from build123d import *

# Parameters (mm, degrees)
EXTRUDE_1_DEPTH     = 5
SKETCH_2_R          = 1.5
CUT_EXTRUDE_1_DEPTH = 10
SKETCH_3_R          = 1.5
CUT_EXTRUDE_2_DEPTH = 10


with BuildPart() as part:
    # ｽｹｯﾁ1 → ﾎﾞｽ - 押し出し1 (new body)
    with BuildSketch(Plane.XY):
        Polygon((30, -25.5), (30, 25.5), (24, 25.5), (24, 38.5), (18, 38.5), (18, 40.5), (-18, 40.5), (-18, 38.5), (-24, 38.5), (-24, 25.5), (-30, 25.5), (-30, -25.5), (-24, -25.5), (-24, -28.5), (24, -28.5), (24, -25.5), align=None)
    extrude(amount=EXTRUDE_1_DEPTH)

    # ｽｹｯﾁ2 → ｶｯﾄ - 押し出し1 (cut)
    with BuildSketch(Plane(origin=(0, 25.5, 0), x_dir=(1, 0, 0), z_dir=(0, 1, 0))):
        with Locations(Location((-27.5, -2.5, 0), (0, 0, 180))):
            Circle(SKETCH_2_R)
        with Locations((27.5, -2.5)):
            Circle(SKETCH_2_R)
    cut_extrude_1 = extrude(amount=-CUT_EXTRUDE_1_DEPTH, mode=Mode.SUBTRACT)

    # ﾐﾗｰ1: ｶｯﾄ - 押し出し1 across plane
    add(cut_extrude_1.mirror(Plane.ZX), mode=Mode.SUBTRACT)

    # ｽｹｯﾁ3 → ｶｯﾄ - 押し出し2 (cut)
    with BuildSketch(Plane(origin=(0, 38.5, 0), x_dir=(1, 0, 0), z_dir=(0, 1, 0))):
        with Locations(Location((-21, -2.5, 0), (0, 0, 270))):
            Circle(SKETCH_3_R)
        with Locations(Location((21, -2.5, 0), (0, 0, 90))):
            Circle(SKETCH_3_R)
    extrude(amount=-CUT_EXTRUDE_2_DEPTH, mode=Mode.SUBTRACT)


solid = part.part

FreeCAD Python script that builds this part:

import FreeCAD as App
import Part
import Sketcher

V = App.Vector
Q = App.Units.Quantity


def add_polygon(sketch, points):
    """Adds a closed chain of lines whose ends are joined by coincident constraints."""
    first, n = sketch.GeometryCount, len(points)
    for a, b in zip(points, points[1:] + points[:1]):
        sketch.addGeometry(Part.LineSegment(App.Vector(*a, 0), App.Vector(*b, 0)), False)
    for i in range(n):
        sketch.addConstraint(Sketcher.Constraint("Coincident", first + i, 2, first + (i + 1) % n, 1))

doc = App.newDocument("Part")
body = doc.addObject("PartDesign::Body", "Body")

# Sketch on XY plane
sketch1 = doc.addObject("Sketcher::SketchObject", "Sketch")
body.addObject(sketch1)
sketch1.AttachmentSupport = (doc.XY_Plane, [""])
sketch1.MapMode = "FlatFace"
add_polygon(sketch1, [(30, -25.5), (30, 25.5), (24, 25.5), (24, 38.5), (18, 38.5), (18, 40.5), (-18, 40.5), (-18, 38.5), (-24, 38.5), (-24, 25.5), (-30, 25.5), (-30, -25.5), (-24, -25.5), (-24, -28.5), (24, -28.5), (24, -25.5)])  # lines 0-15
sketch1.addConstraint([
    Sketcher.Constraint("Vertical", 0),
    Sketcher.Constraint("Horizontal", 1),
    Sketcher.Constraint("Vertical", 2),
    Sketcher.Constraint("Horizontal", 3),
    Sketcher.Constraint("Vertical", 4),
    Sketcher.Constraint("Horizontal", 5),
    Sketcher.Constraint("Vertical", 6),
    Sketcher.Constraint("Horizontal", 7),
    Sketcher.Constraint("Vertical", 8),
    Sketcher.Constraint("Horizontal", 9),
    Sketcher.Constraint("Vertical", 10),
    Sketcher.Constraint("Horizontal", 11),
    Sketcher.Constraint("Vertical", 12),
    Sketcher.Constraint("Horizontal", 13),
    Sketcher.Constraint("Vertical", 14),
    Sketcher.Constraint("Horizontal", 15),
    Sketcher.Constraint("Symmetric", 0, 2, 10, 2, -1, 1),
    Sketcher.Constraint("Symmetric", 8, 2, 14, 2, -1, 1),
    Sketcher.Constraint("Symmetric", 3, 2, 6, 2, -2),
    Sketcher.Constraint("Symmetric", 1, 2, 8, 2, -2),
    Sketcher.Constraint("Vertical", 8, 2, 11, 2),
    Sketcher.Constraint("Equal", 1, 3),
    Sketcher.Constraint("DistanceX", 1, 2, 1, 1, Q("6 mm")),
    Sketcher.Constraint("DistanceX", 5, 2, 5, 1, Q("36 mm")),
    Sketcher.Constraint("DistanceY", 0, 1, 0, 2, Q("51 mm")),
    Sketcher.Constraint("DistanceY", 2, 1, 2, 2, Q("13 mm")),
    Sketcher.Constraint("DistanceY", 4, 1, 4, 2, Q("2 mm")),
    Sketcher.Constraint("DistanceY", 12, 2, 12, 1, Q("3 mm")),
])
pad1 = doc.addObject("PartDesign::Pad", "Pad")
body.addObject(pad1)
pad1.Profile = sketch1
pad1.Length = 5

# Sketch on XZ plane
sketch2 = doc.addObject("Sketcher::SketchObject", "Sketch001")
body.addObject(sketch2)
sketch2.AttachmentSupport = (doc.XZ_Plane, [""])
sketch2.MapMode = "FlatFace"
sketch2.AttachmentOffset = App.Placement(V(0, 0, -25.5), App.Rotation())
sketch2.addGeometry([
    Part.Circle(V(-27.5, 2.5, 0), V(0, 0, 1), 1.5),
    Part.Circle(V(27.5, 2.5, 0), V(0, 0, 1), 1.5),
], False)
sketch2.addConstraint([
    Sketcher.Constraint("Equal", 0, 1),
    Sketcher.Constraint("Symmetric", 0, 3, 1, 3, -2),
    Sketcher.Constraint("Diameter", 0, Q("3 mm")),
    Sketcher.Constraint("DistanceX", 0, 3, 1, 3, Q("55 mm")),
    Sketcher.Constraint("DistanceY", -1, 1, 0, 3, Q("2.5 mm")),
])
pocket1 = doc.addObject("PartDesign::Pocket", "Pocket")
body.addObject(pocket1)
pocket1.Profile = sketch2
pocket1.Length = 10
pocket1.Reversed = True
doc.recompute()

mirrored = doc.addObject("PartDesign::Mirrored", "Mirrored")
body.addObject(mirrored)
mirrored.Originals = [pocket1]
mirrored.MirrorPlane = (doc.XZ_Plane, [""])
body.Tip = mirrored

# Sketch on XZ plane
sketch3 = doc.addObject("Sketcher::SketchObject", "Sketch002")
body.addObject(sketch3)
sketch3.AttachmentSupport = (doc.XZ_Plane, [""])
sketch3.MapMode = "FlatFace"
sketch3.AttachmentOffset = App.Placement(V(0, 0, -38.5), App.Rotation())
sketch3.addGeometry([
    Part.Circle(V(-21, 2.5, 0), V(0, 0, 1), 1.5),
    Part.Circle(V(21, 2.5, 0), V(0, 0, 1), 1.5),
], False)
sketch3.addConstraint([
    Sketcher.Constraint("Equal", 0, 1),
    Sketcher.Constraint("Symmetric", 0, 3, 1, 3, -2),
    Sketcher.Constraint("Diameter", 0, Q("3 mm")),
    Sketcher.Constraint("DistanceX", 0, 3, -1, 1, Q("21 mm")),
    Sketcher.Constraint("DistanceY", -1, 1, 0, 3, Q("2.5 mm")),
])
pocket2 = doc.addObject("PartDesign::Pocket", "Pocket001")
body.addObject(pocket2)
pocket2.Profile = sketch3
pocket2.Length = 10
pocket2.Reversed = True

doc.recompute()
